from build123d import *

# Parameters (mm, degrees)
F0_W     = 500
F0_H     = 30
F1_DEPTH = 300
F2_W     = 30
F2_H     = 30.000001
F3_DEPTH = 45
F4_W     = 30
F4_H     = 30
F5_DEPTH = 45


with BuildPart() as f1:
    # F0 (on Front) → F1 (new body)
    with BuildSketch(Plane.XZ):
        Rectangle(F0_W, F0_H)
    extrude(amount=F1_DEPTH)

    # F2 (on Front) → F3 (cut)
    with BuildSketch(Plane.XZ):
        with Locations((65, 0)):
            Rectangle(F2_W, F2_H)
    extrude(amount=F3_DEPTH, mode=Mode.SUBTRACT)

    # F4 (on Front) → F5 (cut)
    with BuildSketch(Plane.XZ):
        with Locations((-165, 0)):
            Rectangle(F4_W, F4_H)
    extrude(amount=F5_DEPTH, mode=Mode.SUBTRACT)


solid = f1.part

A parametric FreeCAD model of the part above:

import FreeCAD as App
import Part
import Sketcher

V = App.Vector

doc = App.newDocument("Part")
params = doc.addObject("Spreadsheet::Sheet", "Params")
for row, (alias, value) in enumerate([
    ("sketch1_width", "500 mm"),
    ("sketch1_height", "30 mm"),
    ("pad1_length", "300 mm"),
    ("sketch2_width", "30 mm"),
    ("pocket1_length", "45 mm"),
    ("sketch3_width", "30 mm"),
    ("pocket2_length", "45 mm"),
], start=1):
    params.set(f"A{row}", alias)
    params.set(f"B{row}", "=" + value)
    params.setAlias(f"B{row}", alias)

body = doc.addObject("PartDesign::Body", "Body")

# Sketch on XZ plane
sketch1 = body.newObject("Sketcher::SketchObject", "Sketch")
sketch1.AttachmentSupport = (doc.getObject("XZ_Plane"), [""])
sketch1.MapMode = "FlatFace"
sketch1.addGeometry(Part.LineSegment(V(-250, 15, 0), V(-250, -15, 0)), False)
sketch1.addGeometry(Part.LineSegment(V(-250, -15, 0), V(250, -15, 0)), False)
sketch1.addGeometry(Part.LineSegment(V(250, -15, 0), V(250, 15, 0)), False)
sketch1.addGeometry(Part.LineSegment(V(250, 15, 0), V(-250, 15, 0)), False)
sketch1.addConstraint(Sketcher.Constraint("Coincident", 0, 2, 1, 1))
sketch1.addConstraint(Sketcher.Constraint("Coincident", 1, 2, 2, 1))
sketch1.addConstraint(Sketcher.Constraint("Coincident", 2, 2, 3, 1))
sketch1.addConstraint(Sketcher.Constraint("Coincident", 3, 2, 0, 1))
sketch1.addConstraint(Sketcher.Constraint("Vertical", 0))
sketch1.addConstraint(Sketcher.Constraint("Horizontal", 1))
sketch1.addConstraint(Sketcher.Constraint("Vertical", 2))
sketch1.addConstraint(Sketcher.Constraint("Horizontal", 3))
sketch1.addConstraint(Sketcher.Constraint("Symmetric", 0, 2, 2, 2, -1, 1))
sketch1.addConstraint(Sketcher.Constraint("DistanceX", 1, 1, 1, 2, 500.0))
sketch1.addConstraint(Sketcher.Constraint("DistanceY", 0, 2, 0, 1, 30.0))
sketch1.setExpression("Constraints[9]", "Params.sketch1_width")
sketch1.setExpression("Constraints[10]", "Params.sketch1_height")
pad1 = body.newObject("PartDesign::Pad", "Pad")
pad1.Profile = sketch1
pad1.setExpression("Length", "Params.pad1_length")

# Sketch on XZ plane
sketch2 = body.newObject("Sketcher::SketchObject", "Sketch001")
sketch2.AttachmentSupport = (doc.getObject("XZ_Plane"), [""])
sketch2.MapMode = "FlatFace"
sketch2.addGeometry(Part.LineSegment(V(50, 15.000001, 0), V(50, -15.000001, 0)), False)
sketch2.addGeometry(Part.LineSegment(V(50, -15.000001, 0), V(80, -15.000001, 0)), False)
sketch2.addGeometry(Part.LineSegment(V(80, -15.000001, 0), V(80, 15.000001, 0)), False)
sketch2.addGeometry(Part.LineSegment(V(80, 15.000001, 0), V(50, 15.000001, 0)), False)
sketch2.addConstraint(Sketcher.Constraint("Coincident", 0, 2, 1, 1))
sketch2.addConstraint(Sketcher.Constraint("Coincident", 1, 2, 2, 1))
sketch2.addConstraint(Sketcher.Constraint("Coincident", 2, 2, 3, 1))
sketch2.addConstraint(Sketcher.Constraint("Coincident", 3, 2, 0, 1))
sketch2.addConstraint(Sketcher.Constraint("Vertical", 0))
sketch2.addConstraint(Sketcher.Constraint("Horizontal", 1))
sketch2.addConstraint(Sketcher.Constraint("Vertical", 2))
sketch2.addConstraint(Sketcher.Constraint("Horizontal", 3))
sketch2.addConstraint(Sketcher.Constraint("Equal", 3, 0))
sketch2.addConstraint(Sketcher.Constraint("DistanceX", 1, 1, 1, 2, 30.0))
sketch2.addConstraint(Sketcher.Constraint("DistanceX", -1, 1, 0, 2, 50.0))
sketch2.addConstraint(Sketcher.Constraint("DistanceY", 0, 2, -1, 1, 15.000001))
sketch2.setExpression("Constraints[9]", "Params.sketch2_width")
pocket1 = body.newObject("PartDesign::Pocket", "Pocket")
pocket1.Profile = sketch2
pocket1.setExpression("Length", "Params.pocket1_length")
pocket1.Reversed = True

# Sketch on XZ plane
sketch3 = body.newObject("Sketcher::SketchObject", "Sketch002")
sketch3.AttachmentSupport = (doc.getObject("XZ_Plane"), [""])
sketch3.MapMode = "FlatFace"
sketch3.addGeometry(Part.LineSegment(V(-180, 15, 0), V(-180, -15, 0)), False)
sketch3.addGeometry(Part.LineSegment(V(-180, -15, 0), V(-150, -15, 0)), False)
sketch3.addGeometry(Part.LineSegment(V(-150, -15, 0), V(-150, 15, 0)), False)
sketch3.addGeometry(Part.LineSegment(V(-150, 15, 0), V(-180, 15, 0)), False)
sketch3.addConstraint(Sketcher.Constraint("Coincident", 0, 2, 1, 1))
sketch3.addConstraint(Sketcher.Constraint("Coincident", 1, 2, 2, 1))
sketch3.addConstraint(Sketcher.Constraint("Coincident", 2, 2, 3, 1))
sketch3.addConstraint(Sketcher.Constraint("Coincident", 3, 2, 0, 1))
sketch3.addConstraint(Sketcher.Constraint("Vertical", 0))
sketch3.addConstraint(Sketcher.Constraint("Horizontal", 1))
sketch3.addConstraint(Sketcher.Constraint("Vertical", 2))
sketch3.addConstraint(Sketcher.Constraint("Horizontal", 3))
sketch3.addConstraint(Sketcher.Constraint("Equal", 3, 0))
sketch3.addConstraint(Sketcher.Constraint("DistanceX", 1, 1, 1, 2, 30.0))
sketch3.addConstraint(Sketcher.Constraint("DistanceX", 0, 2, -1, 1, 180.0))
sketch3.addConstraint(Sketcher.Constraint("DistanceY", 0, 2, -1, 1, 15.0))
sketch3.setExpression("Constraints[9]", "Params.sketch3_width")
pocket2 = body.newObject("PartDesign::Pocket", "Pocket001")
pocket2.Profile = sketch3
pocket2.setExpression("Length", "Params.pocket2_length")
pocket2.Reversed = True

doc.recompute()
